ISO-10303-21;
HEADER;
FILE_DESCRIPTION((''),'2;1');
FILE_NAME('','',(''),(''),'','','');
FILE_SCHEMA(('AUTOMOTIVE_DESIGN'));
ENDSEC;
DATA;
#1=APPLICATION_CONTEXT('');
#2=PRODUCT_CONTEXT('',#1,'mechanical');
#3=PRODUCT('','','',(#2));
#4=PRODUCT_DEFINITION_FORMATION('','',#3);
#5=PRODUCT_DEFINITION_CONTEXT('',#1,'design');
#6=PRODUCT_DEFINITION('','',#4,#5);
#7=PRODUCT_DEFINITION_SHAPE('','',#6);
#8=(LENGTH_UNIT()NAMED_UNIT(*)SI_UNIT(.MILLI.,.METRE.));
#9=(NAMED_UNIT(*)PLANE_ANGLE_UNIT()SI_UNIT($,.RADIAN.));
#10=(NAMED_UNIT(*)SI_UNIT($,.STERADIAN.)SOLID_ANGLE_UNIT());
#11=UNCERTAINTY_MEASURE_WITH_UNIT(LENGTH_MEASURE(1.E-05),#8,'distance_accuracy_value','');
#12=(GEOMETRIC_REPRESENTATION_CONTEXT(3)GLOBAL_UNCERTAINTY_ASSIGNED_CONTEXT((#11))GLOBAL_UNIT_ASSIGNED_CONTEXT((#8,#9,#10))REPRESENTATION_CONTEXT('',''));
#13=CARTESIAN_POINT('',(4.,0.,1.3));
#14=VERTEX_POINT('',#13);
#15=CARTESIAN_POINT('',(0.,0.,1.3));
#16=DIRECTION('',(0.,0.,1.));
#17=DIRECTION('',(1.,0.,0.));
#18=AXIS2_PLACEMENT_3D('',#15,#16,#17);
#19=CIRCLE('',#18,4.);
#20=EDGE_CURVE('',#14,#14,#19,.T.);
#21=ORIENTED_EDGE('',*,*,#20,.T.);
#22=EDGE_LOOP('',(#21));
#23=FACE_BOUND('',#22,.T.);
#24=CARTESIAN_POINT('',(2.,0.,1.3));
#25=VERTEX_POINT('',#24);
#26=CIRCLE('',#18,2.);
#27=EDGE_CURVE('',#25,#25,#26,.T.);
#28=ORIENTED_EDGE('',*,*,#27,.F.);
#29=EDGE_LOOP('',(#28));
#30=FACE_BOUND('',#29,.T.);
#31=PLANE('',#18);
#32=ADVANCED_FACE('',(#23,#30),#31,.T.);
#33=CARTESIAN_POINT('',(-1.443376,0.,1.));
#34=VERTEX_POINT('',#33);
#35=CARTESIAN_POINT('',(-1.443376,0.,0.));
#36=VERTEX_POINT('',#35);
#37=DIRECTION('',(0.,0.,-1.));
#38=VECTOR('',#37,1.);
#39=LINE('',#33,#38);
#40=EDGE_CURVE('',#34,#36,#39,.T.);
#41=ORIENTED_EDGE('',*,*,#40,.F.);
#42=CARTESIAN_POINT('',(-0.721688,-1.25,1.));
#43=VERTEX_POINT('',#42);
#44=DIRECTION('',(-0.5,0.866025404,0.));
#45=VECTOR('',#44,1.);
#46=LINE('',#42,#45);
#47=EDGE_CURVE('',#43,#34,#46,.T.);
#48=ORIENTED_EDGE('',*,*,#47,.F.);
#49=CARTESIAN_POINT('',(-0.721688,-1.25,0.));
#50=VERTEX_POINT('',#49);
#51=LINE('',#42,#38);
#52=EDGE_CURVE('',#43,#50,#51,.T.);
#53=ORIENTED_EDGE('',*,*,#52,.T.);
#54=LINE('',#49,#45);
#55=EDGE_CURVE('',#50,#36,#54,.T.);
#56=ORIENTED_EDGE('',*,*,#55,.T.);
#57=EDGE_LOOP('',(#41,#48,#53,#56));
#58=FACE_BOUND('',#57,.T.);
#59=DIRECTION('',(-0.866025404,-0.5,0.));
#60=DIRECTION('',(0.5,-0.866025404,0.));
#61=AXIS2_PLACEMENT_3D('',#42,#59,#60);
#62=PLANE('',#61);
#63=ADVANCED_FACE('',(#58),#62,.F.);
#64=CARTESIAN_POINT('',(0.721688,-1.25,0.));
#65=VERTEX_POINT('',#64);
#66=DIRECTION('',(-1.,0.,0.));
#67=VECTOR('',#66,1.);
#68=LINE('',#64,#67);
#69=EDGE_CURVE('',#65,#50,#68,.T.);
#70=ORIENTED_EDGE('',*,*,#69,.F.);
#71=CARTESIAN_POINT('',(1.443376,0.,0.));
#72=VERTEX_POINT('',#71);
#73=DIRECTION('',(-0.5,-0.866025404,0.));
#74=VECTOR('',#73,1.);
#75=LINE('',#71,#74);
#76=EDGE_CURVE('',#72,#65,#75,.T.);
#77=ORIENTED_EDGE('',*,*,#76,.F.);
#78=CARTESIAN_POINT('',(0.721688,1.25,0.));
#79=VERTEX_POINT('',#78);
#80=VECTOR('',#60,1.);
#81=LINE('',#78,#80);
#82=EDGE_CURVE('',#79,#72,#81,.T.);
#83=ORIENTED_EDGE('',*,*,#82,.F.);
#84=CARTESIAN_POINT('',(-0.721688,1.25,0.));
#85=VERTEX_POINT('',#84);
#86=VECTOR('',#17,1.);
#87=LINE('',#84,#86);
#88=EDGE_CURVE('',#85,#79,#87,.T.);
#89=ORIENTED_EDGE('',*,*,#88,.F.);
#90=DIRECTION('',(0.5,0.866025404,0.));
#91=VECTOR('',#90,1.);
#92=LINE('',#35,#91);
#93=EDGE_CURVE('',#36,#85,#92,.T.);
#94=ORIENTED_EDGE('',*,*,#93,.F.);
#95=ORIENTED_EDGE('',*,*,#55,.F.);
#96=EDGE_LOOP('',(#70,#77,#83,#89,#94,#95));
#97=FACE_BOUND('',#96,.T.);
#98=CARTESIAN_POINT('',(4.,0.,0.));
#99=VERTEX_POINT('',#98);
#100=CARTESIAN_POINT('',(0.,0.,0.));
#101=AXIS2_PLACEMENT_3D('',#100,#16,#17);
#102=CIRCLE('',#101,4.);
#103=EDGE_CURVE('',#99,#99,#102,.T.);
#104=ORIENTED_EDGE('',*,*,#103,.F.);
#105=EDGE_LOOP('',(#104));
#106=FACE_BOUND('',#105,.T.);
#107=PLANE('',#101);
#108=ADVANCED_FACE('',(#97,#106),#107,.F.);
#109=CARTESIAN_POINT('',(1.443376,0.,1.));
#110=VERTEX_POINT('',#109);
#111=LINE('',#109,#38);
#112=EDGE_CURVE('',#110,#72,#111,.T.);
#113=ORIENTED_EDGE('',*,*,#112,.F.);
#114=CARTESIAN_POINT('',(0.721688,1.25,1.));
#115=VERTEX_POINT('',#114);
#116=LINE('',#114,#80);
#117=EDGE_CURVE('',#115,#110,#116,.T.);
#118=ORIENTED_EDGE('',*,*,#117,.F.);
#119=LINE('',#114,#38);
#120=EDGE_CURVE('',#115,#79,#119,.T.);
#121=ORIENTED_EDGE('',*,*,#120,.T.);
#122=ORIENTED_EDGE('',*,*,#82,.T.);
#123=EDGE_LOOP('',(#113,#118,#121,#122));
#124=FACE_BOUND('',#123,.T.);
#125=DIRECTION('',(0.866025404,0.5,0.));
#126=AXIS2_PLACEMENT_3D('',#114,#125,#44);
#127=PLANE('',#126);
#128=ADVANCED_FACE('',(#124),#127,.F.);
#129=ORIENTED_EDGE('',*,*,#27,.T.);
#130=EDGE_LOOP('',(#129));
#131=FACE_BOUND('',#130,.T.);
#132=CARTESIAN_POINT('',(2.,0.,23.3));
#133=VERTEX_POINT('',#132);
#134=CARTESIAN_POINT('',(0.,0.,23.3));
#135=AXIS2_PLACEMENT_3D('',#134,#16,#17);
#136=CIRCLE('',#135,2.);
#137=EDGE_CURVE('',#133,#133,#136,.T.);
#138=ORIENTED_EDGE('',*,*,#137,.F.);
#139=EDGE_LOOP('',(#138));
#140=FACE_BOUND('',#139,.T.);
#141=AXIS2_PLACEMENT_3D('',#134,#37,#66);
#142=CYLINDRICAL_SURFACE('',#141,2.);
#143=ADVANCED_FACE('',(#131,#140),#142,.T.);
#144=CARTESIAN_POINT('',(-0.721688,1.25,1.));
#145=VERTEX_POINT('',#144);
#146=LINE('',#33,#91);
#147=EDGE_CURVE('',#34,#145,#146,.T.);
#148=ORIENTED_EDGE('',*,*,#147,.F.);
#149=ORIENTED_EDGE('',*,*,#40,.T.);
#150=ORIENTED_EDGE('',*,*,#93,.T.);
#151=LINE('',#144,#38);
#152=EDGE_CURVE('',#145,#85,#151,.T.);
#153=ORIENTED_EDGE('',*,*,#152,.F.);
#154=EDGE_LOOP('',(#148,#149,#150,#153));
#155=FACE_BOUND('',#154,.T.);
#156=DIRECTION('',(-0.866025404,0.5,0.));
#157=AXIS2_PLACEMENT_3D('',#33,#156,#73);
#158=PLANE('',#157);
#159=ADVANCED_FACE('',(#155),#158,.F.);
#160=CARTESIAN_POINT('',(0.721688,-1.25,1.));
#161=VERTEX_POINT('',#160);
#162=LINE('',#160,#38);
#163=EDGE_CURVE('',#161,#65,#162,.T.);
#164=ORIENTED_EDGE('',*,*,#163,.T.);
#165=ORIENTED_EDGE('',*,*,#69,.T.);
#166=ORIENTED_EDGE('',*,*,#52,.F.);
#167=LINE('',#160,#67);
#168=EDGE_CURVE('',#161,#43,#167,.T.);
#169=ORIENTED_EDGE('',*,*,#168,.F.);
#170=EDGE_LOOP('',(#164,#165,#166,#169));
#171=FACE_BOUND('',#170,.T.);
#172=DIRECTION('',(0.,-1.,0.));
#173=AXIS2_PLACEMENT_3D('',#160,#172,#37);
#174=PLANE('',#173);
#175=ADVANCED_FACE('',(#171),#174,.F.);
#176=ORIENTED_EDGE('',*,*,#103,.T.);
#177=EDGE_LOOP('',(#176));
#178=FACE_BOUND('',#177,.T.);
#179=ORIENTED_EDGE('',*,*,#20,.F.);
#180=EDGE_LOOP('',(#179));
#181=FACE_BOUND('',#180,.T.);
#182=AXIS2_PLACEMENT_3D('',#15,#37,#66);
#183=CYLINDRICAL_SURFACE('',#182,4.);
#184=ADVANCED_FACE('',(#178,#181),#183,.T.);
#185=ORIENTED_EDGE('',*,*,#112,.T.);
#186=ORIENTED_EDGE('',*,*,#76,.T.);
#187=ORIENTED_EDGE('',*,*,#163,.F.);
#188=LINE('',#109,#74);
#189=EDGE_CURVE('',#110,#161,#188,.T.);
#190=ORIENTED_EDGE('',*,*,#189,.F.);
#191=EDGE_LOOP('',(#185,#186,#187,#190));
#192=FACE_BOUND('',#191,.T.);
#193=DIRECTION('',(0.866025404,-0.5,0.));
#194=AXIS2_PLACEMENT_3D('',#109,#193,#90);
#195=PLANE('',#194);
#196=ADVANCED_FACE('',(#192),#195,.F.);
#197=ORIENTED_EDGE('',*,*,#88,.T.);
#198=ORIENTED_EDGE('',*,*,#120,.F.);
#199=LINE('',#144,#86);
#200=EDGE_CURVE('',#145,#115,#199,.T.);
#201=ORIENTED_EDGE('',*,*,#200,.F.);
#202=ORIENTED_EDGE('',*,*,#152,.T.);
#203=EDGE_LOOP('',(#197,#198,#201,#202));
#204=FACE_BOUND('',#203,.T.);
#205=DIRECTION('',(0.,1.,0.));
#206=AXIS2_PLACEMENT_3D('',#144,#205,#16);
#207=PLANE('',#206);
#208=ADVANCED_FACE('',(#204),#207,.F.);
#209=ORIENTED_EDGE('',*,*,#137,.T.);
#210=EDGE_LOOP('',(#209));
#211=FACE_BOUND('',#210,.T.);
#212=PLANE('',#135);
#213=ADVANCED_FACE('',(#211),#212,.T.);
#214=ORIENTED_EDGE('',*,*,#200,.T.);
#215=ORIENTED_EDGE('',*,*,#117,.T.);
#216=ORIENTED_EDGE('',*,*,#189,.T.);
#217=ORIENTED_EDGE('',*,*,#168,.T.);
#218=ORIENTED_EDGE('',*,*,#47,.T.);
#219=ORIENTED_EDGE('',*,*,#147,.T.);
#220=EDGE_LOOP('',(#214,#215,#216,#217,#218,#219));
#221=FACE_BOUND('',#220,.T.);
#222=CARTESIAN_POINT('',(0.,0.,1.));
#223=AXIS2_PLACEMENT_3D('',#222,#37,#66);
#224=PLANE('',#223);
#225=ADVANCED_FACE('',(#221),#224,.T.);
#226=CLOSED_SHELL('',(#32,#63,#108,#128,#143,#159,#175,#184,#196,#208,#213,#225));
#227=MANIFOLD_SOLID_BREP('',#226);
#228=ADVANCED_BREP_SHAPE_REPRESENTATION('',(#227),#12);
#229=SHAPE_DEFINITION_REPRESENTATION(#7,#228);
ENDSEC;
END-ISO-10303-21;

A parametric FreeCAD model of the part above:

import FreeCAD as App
import Part
import Sketcher

V = App.Vector
Q = App.Units.Quantity


def add_polygon(sketch, points):
    """Adds a closed chain of lines whose ends are joined by coincident constraints."""
    first, n = sketch.GeometryCount, len(points)
    for a, b in zip(points, points[1:] + points[:1]):
        sketch.addGeometry(Part.LineSegment(App.Vector(*a, 0), App.Vector(*b, 0)), False)
    for i in range(n):
        sketch.addConstraint(Sketcher.Constraint("Coincident", first + i, 2, first + (i + 1) % n, 1))

doc = App.newDocument("Part")
body = doc.addObject("PartDesign::Body", "Body")

sketch1 = body.newObject("Sketcher::SketchObject", "Sketch")
sketch1.AttachmentSupport = (doc.getObject("XY_Plane"), [""])
sketch1.MapMode = "FlatFace"
sketch1.addGeometry(Part.Circle(V(0, 0, 0), V(0, 0, 1), 4), False)
sketch1.addConstraint([
    Sketcher.Constraint("Coincident", 0, 3, -1, 1),
    Sketcher.Constraint("Diameter", 0, Q("8 mm")),
])
pad1 = body.newObject("PartDesign::Pad", "Pad")
pad1.Profile = sketch1
pad1.Length = 1.3

sketch2 = body.newObject("Sketcher::SketchObject", "Sketch001")
sketch2.AttachmentSupport = (doc.getObject("XY_Plane"), [""])
sketch2.MapMode = "FlatFace"
sketch2.AttachmentOffset = App.Placement(V(0, 0, 1.3), App.Rotation())
sketch2.addGeometry(Part.Circle(V(0, 0, 0), V(0, 0, 1), 2), False)
sketch2.addConstraint([
    Sketcher.Constraint("Coincident", 0, 3, -1, 1),
    Sketcher.Constraint("Diameter", 0, Q("4 mm")),
])
pad2 = body.newObject("PartDesign::Pad", "Pad001")
pad2.Profile = sketch2
pad2.Length = 22

sketch3 = body.newObject("Sketcher::SketchObject", "Sketch002")
sketch3.AttachmentSupport = (doc.getObject("XY_Plane"), [""])
sketch3.MapMode = "FlatFace"
add_polygon(sketch3, [(-1.4, 0), (-0.7, 1.2), (0.7, 1.2), (1.4, 0), (0.7, -1.2), (-0.7, -1.2)])
sketch3.addConstraint([
    Sketcher.Constraint("Horizontal", 1),
    Sketcher.Constraint("Horizontal", 4),
    Sketcher.Constraint("Symmetric", 0, 2, 3, 2, -1, 1),
    Sketcher.Constraint("Symmetric", 2, 2, 5, 2, -1, 1),
    Sketcher.Constraint("PointOnObject", 2, 2, -1),
    Sketcher.Constraint("Parallel", 2, 5),
    Sketcher.Constraint("Vertical", 1, 2, 3, 2),
    Sketcher.Constraint("Angle", 0, Q("60 deg")),
    Sketcher.Constraint("DistanceY", 3, 2, 1, 2, Q("2.5 mm")),
    Sketcher.Constraint("DistanceX", 1, 1, 1, 2, Q("1.443376 mm")),
])
pocket1 = body.newObject("PartDesign::Pocket", "Pocket")
pocket1.Profile = sketch3
pocket1.Length = 1
pocket1.Reversed = True

doc.recompute()
